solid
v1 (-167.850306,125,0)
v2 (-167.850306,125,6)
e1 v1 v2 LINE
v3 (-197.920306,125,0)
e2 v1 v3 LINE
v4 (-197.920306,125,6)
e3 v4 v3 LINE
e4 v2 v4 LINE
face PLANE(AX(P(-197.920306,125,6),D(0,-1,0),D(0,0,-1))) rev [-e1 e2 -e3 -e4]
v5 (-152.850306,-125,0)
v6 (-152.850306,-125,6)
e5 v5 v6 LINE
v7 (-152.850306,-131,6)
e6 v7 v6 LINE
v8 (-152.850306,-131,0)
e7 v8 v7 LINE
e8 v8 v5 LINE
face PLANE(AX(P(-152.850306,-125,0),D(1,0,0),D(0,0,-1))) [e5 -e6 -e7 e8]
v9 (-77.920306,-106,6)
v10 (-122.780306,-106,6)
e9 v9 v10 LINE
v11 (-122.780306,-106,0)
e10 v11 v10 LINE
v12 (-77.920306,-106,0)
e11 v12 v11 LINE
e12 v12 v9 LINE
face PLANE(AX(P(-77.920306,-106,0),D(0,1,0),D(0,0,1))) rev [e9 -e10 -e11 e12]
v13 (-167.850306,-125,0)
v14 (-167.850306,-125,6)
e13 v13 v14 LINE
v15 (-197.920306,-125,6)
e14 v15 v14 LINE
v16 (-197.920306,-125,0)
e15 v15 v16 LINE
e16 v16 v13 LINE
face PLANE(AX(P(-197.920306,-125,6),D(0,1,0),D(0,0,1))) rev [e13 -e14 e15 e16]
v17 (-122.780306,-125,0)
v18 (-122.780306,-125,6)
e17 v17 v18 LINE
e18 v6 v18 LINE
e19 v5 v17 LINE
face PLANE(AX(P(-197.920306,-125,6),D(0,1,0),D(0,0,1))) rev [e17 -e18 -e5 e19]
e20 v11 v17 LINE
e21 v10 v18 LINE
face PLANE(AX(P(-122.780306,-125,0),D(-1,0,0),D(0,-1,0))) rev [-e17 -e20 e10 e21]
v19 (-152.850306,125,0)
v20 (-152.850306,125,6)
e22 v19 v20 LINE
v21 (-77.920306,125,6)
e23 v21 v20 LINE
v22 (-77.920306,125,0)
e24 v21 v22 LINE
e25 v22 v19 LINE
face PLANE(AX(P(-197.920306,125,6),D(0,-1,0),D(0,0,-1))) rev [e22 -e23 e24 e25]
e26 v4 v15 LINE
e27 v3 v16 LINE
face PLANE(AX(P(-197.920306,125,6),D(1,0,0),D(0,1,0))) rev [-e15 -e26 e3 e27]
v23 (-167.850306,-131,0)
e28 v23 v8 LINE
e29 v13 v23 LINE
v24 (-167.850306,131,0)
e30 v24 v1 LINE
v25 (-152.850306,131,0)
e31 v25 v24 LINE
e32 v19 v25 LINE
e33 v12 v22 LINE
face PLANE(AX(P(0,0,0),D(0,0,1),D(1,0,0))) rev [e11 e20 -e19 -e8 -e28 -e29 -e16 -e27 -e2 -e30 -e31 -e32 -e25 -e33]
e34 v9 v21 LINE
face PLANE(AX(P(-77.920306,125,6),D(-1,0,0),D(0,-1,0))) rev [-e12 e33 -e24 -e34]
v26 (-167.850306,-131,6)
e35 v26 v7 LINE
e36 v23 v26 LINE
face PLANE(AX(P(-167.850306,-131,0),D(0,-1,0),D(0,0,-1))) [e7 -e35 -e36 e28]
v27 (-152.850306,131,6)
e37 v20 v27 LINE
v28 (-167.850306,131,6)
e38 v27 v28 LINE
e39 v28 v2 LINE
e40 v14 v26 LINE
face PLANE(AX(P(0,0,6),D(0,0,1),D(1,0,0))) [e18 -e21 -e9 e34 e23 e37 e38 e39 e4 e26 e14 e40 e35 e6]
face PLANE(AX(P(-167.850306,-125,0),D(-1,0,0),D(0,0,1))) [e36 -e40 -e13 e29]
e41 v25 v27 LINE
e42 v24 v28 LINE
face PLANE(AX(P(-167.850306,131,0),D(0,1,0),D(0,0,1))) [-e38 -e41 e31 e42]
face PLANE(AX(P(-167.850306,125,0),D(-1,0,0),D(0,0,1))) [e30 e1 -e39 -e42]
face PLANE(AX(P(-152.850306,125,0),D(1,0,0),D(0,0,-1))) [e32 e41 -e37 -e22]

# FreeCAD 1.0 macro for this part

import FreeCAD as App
import Part
import Sketcher

V = App.Vector
Q = App.Units.Quantity


def add_polygon(sketch, points):
    """Adds a closed chain of lines whose ends are joined by coincident constraints."""
    first, n = sketch.GeometryCount, len(points)
    for a, b in zip(points, points[1:] + points[:1]):
        sketch.addGeometry(Part.LineSegment(App.Vector(*a, 0), App.Vector(*b, 0)), False)
    for i in range(n):
        sketch.addConstraint(Sketcher.Constraint("Coincident", first + i, 2, first + (i + 1) % n, 1))

doc = App.newDocument("Part")
body = doc.addObject("PartDesign::Body", "Body")

# Sketch on XY plane
sketch1 = body.newObject("Sketcher::SketchObject", "Sketch")
sketch1.AttachmentSupport = (doc.getObject("XY_Plane"), [""])
sketch1.MapMode = "FlatFace"
add_polygon(sketch1, [(-198, 125), (-198, -125), (-78, -125), (-78, 125)])  # lines 0-3
sketch1.addConstraint([
    Sketcher.Constraint("Vertical", 0),
    Sketcher.Constraint("Horizontal", 1),
    Sketcher.Constraint("Vertical", 2),
    Sketcher.Constraint("Horizontal", 3),
    Sketcher.Constraint("DistanceX", 1, 1, 1, 2, Q("120 mm")),
    Sketcher.Constraint("DistanceY", 0, 2, 0, 1, Q("250 mm")),
    Sketcher.Constraint("DistanceY", 0, 2, -1, 1, Q("125 mm")),
    Sketcher.Constraint("DistanceX", 0, 2, -1, 1, Q("197.920306 mm")),
])
pad1 = body.newObject("PartDesign::Pad", "Pad")
pad1.Profile = sketch1
pad1.Length = 6

# Sketch on XY plane
sketch2 = body.newObject("Sketcher::SketchObject", "Sketch001")
sketch2.AttachmentSupport = (doc.getObject("XY_Plane"), [""])
sketch2.MapMode = "FlatFace"
sketch2.AttachmentOffset = App.Placement(V(0, 0, 6), App.Rotation())
add_polygon(sketch2, [(-168, -125), (-168, -131), (-153, -131), (-153, -125)])  # lines 0-3
add_polygon(sketch2, [(-168, 131), (-168, 125), (-153, 125), (-153, 131)])  # lines 4-7
sketch2.addConstraint([
    Sketcher.Constraint("Vertical", 0),
    Sketcher.Constraint("Horizontal", 1),
    Sketcher.Constraint("Vertical", 2),
    Sketcher.Constraint("Horizontal", 3),
    Sketcher.Constraint("Vertical", 4),
    Sketcher.Constraint("Horizontal", 5),
    Sketcher.Constraint("Vertical", 6),
    Sketcher.Constraint("Horizontal", 7),
    Sketcher.Constraint("Symmetric", 3, 2, 4, 2, -1),
    Sketcher.Constraint("Symmetric", 1, 2, 6, 2, -1),
    Sketcher.Constraint("DistanceX", 1, 1, 1, 2, Q("15 mm")),
    Sketcher.Constraint("DistanceY", 0, 2, 0, 1, Q("6 mm")),
    Sketcher.Constraint("DistanceY", 0, 2, -1, 1, Q("131 mm")),
    Sketcher.Constraint("DistanceX", 0, 2, -1, 1, Q("167.850306 mm")),
])
pad2 = body.newObject("PartDesign::Pad", "Pad001")
pad2.Profile = sketch2
pad2.Length = 6
pad2.Reversed = True

# Sketch on XY plane
sketch3 = body.newObject("Sketcher::SketchObject", "Sketch002")
sketch3.AttachmentSupport = (doc.getObject("XY_Plane"), [""])
sketch3.MapMode = "FlatFace"
sketch3.AttachmentOffset = App.Placement(V(0, 0, 6), App.Rotation())
add_polygon(sketch3, [(-123, -106), (-123, -125), (-78, -125), (-78, -106)])  # lines 0-3
sketch3.addConstraint([
    Sketcher.Constraint("Vertical", 0),
    Sketcher.Constraint("Horizontal", 1),
    Sketcher.Constraint("Vertical", 2),
    Sketcher.Constraint("Horizontal", 3),
    Sketcher.Constraint("DistanceY", 0, 2, 0, 1, Q("19 mm")),
    Sketcher.Constraint("DistanceY", 0, 2, -1, 1, Q("125 mm")),
    Sketcher.Constraint("DistanceX", 1, 1, 1, 2, Q("44.86 mm")),
    Sketcher.Constraint("DistanceX", 0, 2, -1, 1, Q("122.780306 mm")),
])
pocket1 = body.newObject("PartDesign::Pocket", "Pocket")
pocket1.Profile = sketch3
pocket1.Length = 6

doc.recompute()
